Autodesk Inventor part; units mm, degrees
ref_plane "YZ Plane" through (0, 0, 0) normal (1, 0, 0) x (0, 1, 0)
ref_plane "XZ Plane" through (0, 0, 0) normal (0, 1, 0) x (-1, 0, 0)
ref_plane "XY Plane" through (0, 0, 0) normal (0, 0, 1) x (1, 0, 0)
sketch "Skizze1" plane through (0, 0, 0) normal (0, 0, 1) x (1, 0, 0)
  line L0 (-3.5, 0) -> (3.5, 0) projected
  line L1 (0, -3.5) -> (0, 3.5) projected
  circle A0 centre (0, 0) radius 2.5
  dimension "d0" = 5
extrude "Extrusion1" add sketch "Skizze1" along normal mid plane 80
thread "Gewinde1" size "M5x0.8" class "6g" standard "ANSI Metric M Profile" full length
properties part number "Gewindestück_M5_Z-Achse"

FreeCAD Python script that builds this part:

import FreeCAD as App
import Part
import Sketcher
from FreeCAD import Vector

doc = App.newDocument("Part")
body = doc.addObject("PartDesign::Body", "Body")

sketch1 = body.newObject("Sketcher::SketchObject", "Sketch")
sketch1.AttachmentSupport = (doc.getObject("XY_Plane"), [""])
sketch1.MapMode = "FlatFace"
sketch1.addGeometry(Part.Circle(Vector(0, 0, 0), Vector(0, 0, 1), 2.5), False)
sketch1.addConstraint([
    Sketcher.Constraint("Coincident", 0, 3, -1, 1),
    Sketcher.Constraint("Diameter", 0, 5.0),
])
pad1 = body.newObject("PartDesign::Pad", "Pad")
pad1.Profile = sketch1
pad1.Length = 80
pad1.Midplane = True

doc.recompute()
